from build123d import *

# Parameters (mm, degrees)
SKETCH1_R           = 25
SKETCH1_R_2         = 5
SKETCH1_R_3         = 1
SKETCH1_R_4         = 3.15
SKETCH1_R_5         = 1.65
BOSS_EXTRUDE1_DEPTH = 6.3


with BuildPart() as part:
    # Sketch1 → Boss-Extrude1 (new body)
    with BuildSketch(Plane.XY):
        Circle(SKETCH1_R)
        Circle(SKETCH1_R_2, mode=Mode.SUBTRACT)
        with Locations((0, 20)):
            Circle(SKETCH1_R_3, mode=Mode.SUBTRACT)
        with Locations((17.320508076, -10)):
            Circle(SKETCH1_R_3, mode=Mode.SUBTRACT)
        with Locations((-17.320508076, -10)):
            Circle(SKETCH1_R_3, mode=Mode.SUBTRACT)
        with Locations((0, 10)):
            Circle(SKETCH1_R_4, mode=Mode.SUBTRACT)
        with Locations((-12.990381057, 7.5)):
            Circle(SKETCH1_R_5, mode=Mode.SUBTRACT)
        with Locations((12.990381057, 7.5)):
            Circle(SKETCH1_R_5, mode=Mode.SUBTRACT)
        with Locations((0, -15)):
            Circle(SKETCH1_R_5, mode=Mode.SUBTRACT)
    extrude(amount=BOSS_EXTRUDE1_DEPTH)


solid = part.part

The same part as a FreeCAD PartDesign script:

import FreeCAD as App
import Part
import Sketcher

V = App.Vector
Q = App.Units.Quantity

doc = App.newDocument("Part")
body = doc.addObject("PartDesign::Body", "Body")

# Sketch on XY plane
sketch1 = doc.addObject("Sketcher::SketchObject", "Sketch")
body.addObject(sketch1)
sketch1.AttachmentSupport = (doc.XY_Plane, [""])
sketch1.MapMode = "FlatFace"
sketch1.addGeometry(Part.Circle(V(0, 0, 0), V(0, 0, 1), 25), False)
sketch1.addGeometry(Part.Circle(V(-17.3, -10, 0), V(0, 0, 1), 1), False)
sketch1.addGeometry(Part.Circle(V(0, -15, 0), V(0, 0, 1), 1.6), False)
sketch1.addGeometry(Part.Circle(V(17.3, -10, 0), V(0, 0, 1), 1), False)
sketch1.addGeometry(Part.Circle(V(0, 0, 0), V(0, 0, 1), 5), False)
sketch1.addGeometry(Part.Circle(V(-13, 7.5, 0), V(0, 0, 1), 1.6), False)
sketch1.addGeometry(Part.Circle(V(0, 10, 0), V(0, 0, 1), 3.1), False)
sketch1.addGeometry(Part.Circle(V(13, 7.5, 0), V(0, 0, 1), 1.6), False)
sketch1.addGeometry(Part.Circle(V(0, 20, 0), V(0, 0, 1), 1), False)
sketch1.addConstraint(Sketcher.Constraint("Coincident", 0, 3, -1, 1))
sketch1.addConstraint(Sketcher.Constraint("Coincident", 4, 3, -1, 1))
sketch1.addConstraint(Sketcher.Constraint("Equal", 1, 3))
sketch1.addConstraint(Sketcher.Constraint("Equal", 2, 5))
sketch1.addConstraint(Sketcher.Constraint("Equal", 5, 7))
sketch1.addConstraint(Sketcher.Constraint("Equal", 3, 8))
sketch1.addConstraint(Sketcher.Constraint("Symmetric", 1, 3, 3, 3, -2))
sketch1.addConstraint(Sketcher.Constraint("Symmetric", 5, 3, 7, 3, -2))
sketch1.addConstraint(Sketcher.Constraint("PointOnObject", 2, 3, -2))
sketch1.addConstraint(Sketcher.Constraint("PointOnObject", 6, 3, -2))
sketch1.addConstraint(Sketcher.Constraint("PointOnObject", 8, 3, -2))
sketch1.addConstraint(Sketcher.Constraint("Diameter", 0, Q("50 mm")))
sketch1.addConstraint(Sketcher.Constraint("Diameter", 1, Q("2 mm")))
sketch1.addConstraint(Sketcher.Constraint("Diameter", 4, Q("10 mm")))
sketch1.addConstraint(Sketcher.Constraint("Diameter", 2, Q("3.3 mm")))
sketch1.addConstraint(Sketcher.Constraint("Diameter", 6, Q("6.3 mm")))
sketch1.addConstraint(Sketcher.Constraint("DistanceY", 1, 3, -1, 1, Q("10 mm")))
sketch1.addConstraint(Sketcher.Constraint("DistanceY", 2, 3, -1, 1, Q("15 mm")))
sketch1.addConstraint(Sketcher.Constraint("DistanceY", -1, 1, 6, 3, Q("10 mm")))
sketch1.addConstraint(Sketcher.Constraint("DistanceY", -1, 1, 8, 3, Q("20 mm")))
sketch1.addConstraint(Sketcher.Constraint("DistanceY", -1, 1, 5, 3, Q("7.5 mm")))
sketch1.addConstraint(Sketcher.Constraint("DistanceX", 1, 3, -1, 1, Q("17.320508 mm")))
sketch1.addConstraint(Sketcher.Constraint("DistanceX", 5, 3, -1, 1, Q("12.990381 mm")))
pad1 = doc.addObject("PartDesign::Pad", "Pad")
body.addObject(pad1)
pad1.Profile = sketch1
pad1.Length = 6.3

doc.recompute()
